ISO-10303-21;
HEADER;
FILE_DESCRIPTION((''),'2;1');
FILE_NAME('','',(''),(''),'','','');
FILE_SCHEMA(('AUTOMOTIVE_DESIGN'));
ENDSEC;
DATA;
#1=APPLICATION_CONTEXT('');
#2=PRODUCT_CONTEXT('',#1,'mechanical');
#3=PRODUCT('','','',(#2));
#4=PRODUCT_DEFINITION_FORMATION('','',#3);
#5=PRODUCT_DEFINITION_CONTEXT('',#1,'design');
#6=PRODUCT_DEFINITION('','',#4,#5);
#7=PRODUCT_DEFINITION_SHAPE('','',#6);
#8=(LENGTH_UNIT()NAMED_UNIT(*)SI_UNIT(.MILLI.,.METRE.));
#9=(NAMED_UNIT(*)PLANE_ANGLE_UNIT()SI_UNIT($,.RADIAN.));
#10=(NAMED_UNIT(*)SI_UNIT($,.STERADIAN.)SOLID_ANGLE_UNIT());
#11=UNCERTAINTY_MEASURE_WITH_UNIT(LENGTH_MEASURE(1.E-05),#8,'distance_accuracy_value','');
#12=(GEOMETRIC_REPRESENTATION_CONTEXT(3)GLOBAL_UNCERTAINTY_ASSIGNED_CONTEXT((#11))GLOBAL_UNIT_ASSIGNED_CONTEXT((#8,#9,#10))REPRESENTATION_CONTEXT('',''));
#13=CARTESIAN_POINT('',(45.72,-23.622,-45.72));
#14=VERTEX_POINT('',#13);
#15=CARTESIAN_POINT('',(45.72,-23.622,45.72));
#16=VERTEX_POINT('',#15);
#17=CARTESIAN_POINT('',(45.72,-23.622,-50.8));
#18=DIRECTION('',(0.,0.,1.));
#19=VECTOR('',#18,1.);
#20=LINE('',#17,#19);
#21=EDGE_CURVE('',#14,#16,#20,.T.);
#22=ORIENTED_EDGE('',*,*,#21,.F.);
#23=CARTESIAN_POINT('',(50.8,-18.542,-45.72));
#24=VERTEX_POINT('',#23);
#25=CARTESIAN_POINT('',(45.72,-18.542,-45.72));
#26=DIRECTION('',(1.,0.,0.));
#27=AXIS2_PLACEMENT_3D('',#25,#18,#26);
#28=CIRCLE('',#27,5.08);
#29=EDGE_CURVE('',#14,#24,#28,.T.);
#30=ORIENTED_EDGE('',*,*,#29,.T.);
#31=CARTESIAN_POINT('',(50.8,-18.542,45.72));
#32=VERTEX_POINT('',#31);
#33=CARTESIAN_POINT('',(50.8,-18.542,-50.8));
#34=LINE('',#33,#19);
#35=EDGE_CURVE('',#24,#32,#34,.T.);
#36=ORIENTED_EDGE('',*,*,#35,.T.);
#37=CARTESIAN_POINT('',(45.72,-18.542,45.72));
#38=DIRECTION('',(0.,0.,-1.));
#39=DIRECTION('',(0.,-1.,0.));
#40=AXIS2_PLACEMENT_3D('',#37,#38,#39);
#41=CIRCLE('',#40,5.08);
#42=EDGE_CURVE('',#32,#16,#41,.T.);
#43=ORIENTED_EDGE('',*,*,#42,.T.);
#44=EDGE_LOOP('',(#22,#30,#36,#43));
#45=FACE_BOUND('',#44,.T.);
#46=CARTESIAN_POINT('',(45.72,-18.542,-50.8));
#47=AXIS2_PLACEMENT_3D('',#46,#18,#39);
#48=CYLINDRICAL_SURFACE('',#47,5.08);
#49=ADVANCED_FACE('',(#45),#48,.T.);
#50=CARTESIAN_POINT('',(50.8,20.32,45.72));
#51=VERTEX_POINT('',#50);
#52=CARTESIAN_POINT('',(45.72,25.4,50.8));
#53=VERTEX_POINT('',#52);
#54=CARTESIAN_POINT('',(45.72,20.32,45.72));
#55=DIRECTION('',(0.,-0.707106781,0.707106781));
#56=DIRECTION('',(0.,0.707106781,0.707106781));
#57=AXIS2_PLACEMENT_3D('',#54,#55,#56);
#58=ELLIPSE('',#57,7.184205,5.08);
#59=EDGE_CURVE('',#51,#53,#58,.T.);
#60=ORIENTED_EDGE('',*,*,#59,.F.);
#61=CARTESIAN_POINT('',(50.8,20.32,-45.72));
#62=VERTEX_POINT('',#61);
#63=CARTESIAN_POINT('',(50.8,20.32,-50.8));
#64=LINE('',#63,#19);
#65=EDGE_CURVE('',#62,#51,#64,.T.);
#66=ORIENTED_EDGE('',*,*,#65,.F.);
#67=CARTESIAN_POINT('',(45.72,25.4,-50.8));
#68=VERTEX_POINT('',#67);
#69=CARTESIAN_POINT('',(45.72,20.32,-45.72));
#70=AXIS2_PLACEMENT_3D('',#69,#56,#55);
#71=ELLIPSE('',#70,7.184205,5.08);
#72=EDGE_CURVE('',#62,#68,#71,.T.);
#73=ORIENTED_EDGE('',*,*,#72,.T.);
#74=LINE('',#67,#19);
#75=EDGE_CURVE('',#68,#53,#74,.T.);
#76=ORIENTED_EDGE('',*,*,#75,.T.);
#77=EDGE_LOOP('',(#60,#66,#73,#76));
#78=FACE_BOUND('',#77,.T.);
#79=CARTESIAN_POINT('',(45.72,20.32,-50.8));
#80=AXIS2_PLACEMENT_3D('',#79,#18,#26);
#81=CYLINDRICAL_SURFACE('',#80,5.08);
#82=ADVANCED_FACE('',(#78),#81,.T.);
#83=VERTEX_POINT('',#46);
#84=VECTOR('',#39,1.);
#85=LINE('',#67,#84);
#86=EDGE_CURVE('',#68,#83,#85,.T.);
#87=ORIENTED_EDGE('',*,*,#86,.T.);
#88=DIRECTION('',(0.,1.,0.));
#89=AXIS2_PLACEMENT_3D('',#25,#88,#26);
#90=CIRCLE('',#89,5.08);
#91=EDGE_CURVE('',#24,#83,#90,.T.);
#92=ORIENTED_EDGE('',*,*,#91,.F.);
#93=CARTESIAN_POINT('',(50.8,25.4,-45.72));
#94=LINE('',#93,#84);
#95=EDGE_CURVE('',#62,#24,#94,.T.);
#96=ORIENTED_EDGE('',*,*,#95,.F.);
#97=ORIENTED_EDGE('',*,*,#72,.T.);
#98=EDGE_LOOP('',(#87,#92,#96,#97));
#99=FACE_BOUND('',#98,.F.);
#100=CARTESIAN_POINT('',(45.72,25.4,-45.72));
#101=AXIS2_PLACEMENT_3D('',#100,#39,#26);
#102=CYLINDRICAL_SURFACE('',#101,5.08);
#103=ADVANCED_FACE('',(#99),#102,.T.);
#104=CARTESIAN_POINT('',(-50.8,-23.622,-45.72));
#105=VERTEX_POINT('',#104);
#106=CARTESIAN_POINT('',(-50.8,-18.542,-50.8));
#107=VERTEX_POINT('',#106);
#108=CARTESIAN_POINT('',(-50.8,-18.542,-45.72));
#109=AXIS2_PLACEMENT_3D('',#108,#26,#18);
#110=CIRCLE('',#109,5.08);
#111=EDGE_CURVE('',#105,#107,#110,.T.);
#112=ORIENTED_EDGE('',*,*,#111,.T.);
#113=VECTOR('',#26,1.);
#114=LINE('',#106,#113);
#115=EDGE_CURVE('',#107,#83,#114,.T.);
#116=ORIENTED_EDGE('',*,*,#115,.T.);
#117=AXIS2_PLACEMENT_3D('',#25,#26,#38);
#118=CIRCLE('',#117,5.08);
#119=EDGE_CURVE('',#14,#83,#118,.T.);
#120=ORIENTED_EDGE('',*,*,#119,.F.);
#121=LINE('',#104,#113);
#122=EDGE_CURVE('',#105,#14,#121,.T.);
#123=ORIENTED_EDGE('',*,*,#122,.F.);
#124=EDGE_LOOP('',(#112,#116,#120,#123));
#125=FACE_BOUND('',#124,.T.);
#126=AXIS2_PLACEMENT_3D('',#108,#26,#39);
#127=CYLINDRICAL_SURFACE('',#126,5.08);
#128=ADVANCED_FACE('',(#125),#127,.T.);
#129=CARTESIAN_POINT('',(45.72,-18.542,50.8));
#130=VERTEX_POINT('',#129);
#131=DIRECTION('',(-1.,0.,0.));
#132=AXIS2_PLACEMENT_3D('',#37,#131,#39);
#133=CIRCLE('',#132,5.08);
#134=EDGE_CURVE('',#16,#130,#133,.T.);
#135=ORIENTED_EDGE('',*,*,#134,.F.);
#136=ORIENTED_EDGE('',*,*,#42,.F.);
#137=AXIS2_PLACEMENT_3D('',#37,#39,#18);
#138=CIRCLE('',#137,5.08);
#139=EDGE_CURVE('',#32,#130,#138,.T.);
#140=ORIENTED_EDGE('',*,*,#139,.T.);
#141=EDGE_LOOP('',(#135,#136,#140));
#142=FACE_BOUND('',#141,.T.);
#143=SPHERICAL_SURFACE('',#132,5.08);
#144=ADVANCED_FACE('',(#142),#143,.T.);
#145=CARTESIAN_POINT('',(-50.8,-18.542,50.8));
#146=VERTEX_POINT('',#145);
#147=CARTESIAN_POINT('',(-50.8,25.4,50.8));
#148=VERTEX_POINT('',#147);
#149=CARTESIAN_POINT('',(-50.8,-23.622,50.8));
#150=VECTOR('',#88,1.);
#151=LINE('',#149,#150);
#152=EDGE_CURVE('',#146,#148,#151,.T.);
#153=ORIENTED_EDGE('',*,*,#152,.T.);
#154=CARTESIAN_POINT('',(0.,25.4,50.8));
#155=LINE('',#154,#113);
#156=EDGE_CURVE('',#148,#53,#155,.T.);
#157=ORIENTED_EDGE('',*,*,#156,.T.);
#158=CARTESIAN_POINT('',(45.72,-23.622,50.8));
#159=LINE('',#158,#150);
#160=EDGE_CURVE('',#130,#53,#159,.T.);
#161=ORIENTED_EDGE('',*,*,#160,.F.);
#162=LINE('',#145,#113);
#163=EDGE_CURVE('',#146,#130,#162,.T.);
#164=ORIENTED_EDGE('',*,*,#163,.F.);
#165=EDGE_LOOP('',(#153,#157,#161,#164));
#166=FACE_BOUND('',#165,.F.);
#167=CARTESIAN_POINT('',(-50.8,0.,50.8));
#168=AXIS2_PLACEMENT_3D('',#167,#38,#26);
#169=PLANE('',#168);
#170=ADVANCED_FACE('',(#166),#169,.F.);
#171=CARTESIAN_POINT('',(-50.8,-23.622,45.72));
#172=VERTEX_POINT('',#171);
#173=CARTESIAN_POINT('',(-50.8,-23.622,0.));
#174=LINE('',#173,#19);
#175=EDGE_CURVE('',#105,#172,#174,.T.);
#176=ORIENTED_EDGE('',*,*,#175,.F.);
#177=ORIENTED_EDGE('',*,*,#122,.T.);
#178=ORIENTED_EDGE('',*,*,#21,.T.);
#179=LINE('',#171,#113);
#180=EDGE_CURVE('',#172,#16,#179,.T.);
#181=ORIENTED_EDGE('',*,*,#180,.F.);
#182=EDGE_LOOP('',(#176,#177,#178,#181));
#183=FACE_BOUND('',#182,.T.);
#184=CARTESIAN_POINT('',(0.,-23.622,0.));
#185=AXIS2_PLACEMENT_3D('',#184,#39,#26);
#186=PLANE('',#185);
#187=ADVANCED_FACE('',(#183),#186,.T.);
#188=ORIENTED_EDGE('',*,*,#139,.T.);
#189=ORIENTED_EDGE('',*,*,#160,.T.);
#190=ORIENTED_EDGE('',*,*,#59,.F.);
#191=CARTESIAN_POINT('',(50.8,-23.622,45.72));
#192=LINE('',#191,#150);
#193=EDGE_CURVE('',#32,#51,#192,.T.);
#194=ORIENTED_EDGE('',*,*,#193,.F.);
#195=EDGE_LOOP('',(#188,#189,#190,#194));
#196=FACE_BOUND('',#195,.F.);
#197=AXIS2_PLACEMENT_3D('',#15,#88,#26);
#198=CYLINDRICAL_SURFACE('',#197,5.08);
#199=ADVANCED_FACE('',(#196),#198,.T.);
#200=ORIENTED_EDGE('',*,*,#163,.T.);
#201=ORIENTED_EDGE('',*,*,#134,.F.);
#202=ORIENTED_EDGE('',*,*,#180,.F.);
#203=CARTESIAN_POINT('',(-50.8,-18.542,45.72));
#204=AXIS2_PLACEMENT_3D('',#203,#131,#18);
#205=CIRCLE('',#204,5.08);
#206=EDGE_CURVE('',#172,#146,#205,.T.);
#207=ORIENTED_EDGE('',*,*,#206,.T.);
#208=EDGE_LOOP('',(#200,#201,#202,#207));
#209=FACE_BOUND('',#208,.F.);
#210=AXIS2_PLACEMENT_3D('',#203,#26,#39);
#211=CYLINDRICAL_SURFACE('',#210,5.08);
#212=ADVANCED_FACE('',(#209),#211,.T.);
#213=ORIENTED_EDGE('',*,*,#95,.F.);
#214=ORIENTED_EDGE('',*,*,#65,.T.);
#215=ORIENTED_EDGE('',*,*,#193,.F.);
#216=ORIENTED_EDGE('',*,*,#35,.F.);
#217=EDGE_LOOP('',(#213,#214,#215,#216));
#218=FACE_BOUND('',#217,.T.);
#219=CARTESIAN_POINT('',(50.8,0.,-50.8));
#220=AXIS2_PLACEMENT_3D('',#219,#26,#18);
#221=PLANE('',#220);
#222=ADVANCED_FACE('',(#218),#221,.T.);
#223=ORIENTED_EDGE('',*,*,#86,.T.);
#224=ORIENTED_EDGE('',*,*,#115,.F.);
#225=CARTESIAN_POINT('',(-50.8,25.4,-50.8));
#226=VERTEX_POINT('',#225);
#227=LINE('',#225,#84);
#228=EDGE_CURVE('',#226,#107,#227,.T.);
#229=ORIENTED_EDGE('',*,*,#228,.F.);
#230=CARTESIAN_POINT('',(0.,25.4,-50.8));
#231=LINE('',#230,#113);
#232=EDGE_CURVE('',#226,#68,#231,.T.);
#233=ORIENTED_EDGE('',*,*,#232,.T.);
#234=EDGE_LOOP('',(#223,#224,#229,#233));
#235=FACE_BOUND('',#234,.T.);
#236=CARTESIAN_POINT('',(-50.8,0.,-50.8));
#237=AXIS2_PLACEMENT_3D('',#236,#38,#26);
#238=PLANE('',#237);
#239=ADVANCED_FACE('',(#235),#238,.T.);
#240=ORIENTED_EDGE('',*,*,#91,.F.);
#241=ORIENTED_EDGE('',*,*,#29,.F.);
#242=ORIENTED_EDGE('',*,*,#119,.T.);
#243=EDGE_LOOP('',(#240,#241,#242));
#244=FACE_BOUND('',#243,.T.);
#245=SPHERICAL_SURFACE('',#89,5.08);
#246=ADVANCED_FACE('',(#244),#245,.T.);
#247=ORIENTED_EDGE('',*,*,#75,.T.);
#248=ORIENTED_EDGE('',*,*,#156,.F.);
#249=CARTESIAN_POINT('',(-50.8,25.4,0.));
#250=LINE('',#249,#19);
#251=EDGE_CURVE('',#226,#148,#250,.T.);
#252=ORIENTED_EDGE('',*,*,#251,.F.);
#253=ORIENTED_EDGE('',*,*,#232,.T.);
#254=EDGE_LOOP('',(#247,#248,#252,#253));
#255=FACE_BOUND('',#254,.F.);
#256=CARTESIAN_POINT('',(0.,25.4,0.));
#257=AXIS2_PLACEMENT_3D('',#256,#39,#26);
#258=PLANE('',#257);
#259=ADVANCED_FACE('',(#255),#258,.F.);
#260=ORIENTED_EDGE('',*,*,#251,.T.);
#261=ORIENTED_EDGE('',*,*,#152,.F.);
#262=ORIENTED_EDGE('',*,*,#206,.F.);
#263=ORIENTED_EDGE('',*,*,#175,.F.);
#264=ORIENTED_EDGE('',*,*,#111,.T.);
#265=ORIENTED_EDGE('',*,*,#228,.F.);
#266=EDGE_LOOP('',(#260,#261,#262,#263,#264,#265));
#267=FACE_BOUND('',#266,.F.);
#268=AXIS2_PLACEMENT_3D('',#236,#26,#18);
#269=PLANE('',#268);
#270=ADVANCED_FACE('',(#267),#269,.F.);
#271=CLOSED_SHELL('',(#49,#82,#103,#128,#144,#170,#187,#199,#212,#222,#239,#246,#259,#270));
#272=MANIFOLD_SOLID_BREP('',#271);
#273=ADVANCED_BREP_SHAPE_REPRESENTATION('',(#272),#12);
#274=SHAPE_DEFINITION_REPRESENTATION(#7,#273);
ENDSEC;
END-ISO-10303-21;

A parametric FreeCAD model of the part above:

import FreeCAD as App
import Part
import Sketcher
Q = App.Units.Quantity


def edges_at(feature, points):
    """Names of the edges that pass closest to the given points."""
    edges = feature.Shape.Edges
    near = lambda p: min(range(len(edges)), key=lambda i: edges[i].distToShape(Part.Vertex(*p))[0])
    return sorted({f"Edge{near(p) + 1}" for p in points})


def add_polygon(sketch, points):
    """Adds a closed chain of lines whose ends are joined by coincident constraints."""
    first, n = sketch.GeometryCount, len(points)
    for a, b in zip(points, points[1:] + points[:1]):
        sketch.addGeometry(Part.LineSegment(App.Vector(*a, 0), App.Vector(*b, 0)), False)
    for i in range(n):
        sketch.addConstraint(Sketcher.Constraint("Coincident", first + i, 2, first + (i + 1) % n, 1))

doc = App.newDocument("Part")
body = doc.addObject("PartDesign::Body", "Body")

# Sketch on XZ plane
sketch1 = body.newObject("Sketcher::SketchObject", "Sketch")
sketch1.AttachmentSupport = (doc.getObject("XZ_Plane"), [""])
sketch1.MapMode = "FlatFace"
add_polygon(sketch1, [(-51, 51), (-51, -51), (51, -51), (51, 51)])  # lines 0-3
sketch1.addConstraint([
    Sketcher.Constraint("Vertical", 0),
    Sketcher.Constraint("Horizontal", 1),
    Sketcher.Constraint("Vertical", 2),
    Sketcher.Constraint("Horizontal", 3),
    Sketcher.Constraint("Symmetric", 0, 2, 2, 2, -1, 1),
    Sketcher.Constraint("Equal", 3, 0),
    Sketcher.Constraint("DistanceX", 1, 1, 1, 2, Q("4 in")),
])
pad1 = body.newObject("PartDesign::Pad", "Pad")
pad1.Profile = sketch1
pad1.Type = "TwoLengths"
pad1.Length = Q("0.93 in")
pad1.Length2 = Q("1 in")
doc.recompute()

fillet = body.newObject("PartDesign::Fillet", "Fillet")
fillet.Base = (pad1, edges_at(pad1, [
    (0, -23.622, 50.8),
    (50.8, 0.889, -50.8),
    (50.8, -23.622, 0),
    (50.8, 0.889, 50.8),
    (50.8, 25.4, 0),
    (0, -23.622, -50.8),
]))
fillet.Radius = Q("0.2 in")

doc.recompute()
